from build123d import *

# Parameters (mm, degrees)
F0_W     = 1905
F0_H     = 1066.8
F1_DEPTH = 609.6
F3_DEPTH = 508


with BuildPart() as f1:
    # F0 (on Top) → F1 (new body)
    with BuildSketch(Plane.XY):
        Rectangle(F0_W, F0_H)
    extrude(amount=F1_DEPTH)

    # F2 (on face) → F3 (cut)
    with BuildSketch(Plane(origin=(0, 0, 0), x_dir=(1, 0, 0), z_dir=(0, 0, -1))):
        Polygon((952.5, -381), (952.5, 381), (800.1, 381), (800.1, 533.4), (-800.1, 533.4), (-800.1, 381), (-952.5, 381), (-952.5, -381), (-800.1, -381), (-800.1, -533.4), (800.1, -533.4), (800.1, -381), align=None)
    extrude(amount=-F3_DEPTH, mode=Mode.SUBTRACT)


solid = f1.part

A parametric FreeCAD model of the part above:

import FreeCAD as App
import Part
import Sketcher

V = App.Vector
Q = App.Units.Quantity


def add_polygon(sketch, points):
    """Adds a closed chain of lines whose ends are joined by coincident constraints."""
    first, n = sketch.GeometryCount, len(points)
    for a, b in zip(points, points[1:] + points[:1]):
        sketch.addGeometry(Part.LineSegment(App.Vector(*a, 0), App.Vector(*b, 0)), False)
    for i in range(n):
        sketch.addConstraint(Sketcher.Constraint("Coincident", first + i, 2, first + (i + 1) % n, 1))

doc = App.newDocument("Part")
body = doc.addObject("PartDesign::Body", "Body")

# Sketch on XY plane
sketch1 = body.newObject("Sketcher::SketchObject", "Sketch")
sketch1.AttachmentSupport = (doc.getObject("XY_Plane"), [""])
sketch1.MapMode = "FlatFace"
add_polygon(sketch1, [(-952, 533), (-952, -533), (952, -533), (952, 533)])  # lines 0-3
sketch1.addConstraint([
    Sketcher.Constraint("Vertical", 0),
    Sketcher.Constraint("Horizontal", 1),
    Sketcher.Constraint("Vertical", 2),
    Sketcher.Constraint("Horizontal", 3),
    Sketcher.Constraint("Symmetric", 0, 2, 2, 2, -1, 1),
    Sketcher.Constraint("DistanceX", 1, 1, 1, 2, Q("75 in")),
    Sketcher.Constraint("DistanceY", 0, 2, 0, 1, Q("42 in")),
])
pad1 = body.newObject("PartDesign::Pad", "Pad")
pad1.Profile = sketch1
pad1.Length = Q("24 in")

# Sketch on XY plane
sketch2 = body.newObject("Sketcher::SketchObject", "Sketch001")
sketch2.AttachmentSupport = (doc.getObject("XY_Plane"), [""])
sketch2.MapMode = "FlatFace"
add_polygon(sketch2, [(952, 381), (952, -381), (800, -381), (800, -533), (-800, -533), (-800, -381), (-952, -381), (-952, 381), (-800, 381), (-800, 533), (800, 533), (800, 381)])  # lines 0-11
sketch2.addConstraint([
    Sketcher.Constraint("Vertical", 0),
    Sketcher.Constraint("Horizontal", 1),
    Sketcher.Constraint("Vertical", 2),
    Sketcher.Constraint("Horizontal", 3),
    Sketcher.Constraint("Vertical", 4),
    Sketcher.Constraint("Horizontal", 5),
    Sketcher.Constraint("Vertical", 6),
    Sketcher.Constraint("Horizontal", 7),
    Sketcher.Constraint("Vertical", 8),
    Sketcher.Constraint("Horizontal", 9),
    Sketcher.Constraint("Vertical", 10),
    Sketcher.Constraint("Horizontal", 11),
    Sketcher.Constraint("Symmetric", 0, 2, 6, 2, -1, 1),
    Sketcher.Constraint("Symmetric", 2, 2, 8, 2, -1, 1),
    Sketcher.Constraint("Symmetric", 4, 2, 10, 2, -1, 1),
    Sketcher.Constraint("Symmetric", 1, 2, 4, 2, -2),
    Sketcher.Constraint("Equal", 11, 2),
    Sketcher.Constraint("DistanceX", 1, 2, 1, 1, Q("6 in")),
    Sketcher.Constraint("DistanceX", 3, 2, 3, 1, Q("63 in")),
    Sketcher.Constraint("DistanceY", 0, 2, 0, 1, Q("30 in")),
])
pocket1 = body.newObject("PartDesign::Pocket", "Pocket")
pocket1.Profile = sketch2
pocket1.Length = Q("20 in")
pocket1.Reversed = True

doc.recompute()
